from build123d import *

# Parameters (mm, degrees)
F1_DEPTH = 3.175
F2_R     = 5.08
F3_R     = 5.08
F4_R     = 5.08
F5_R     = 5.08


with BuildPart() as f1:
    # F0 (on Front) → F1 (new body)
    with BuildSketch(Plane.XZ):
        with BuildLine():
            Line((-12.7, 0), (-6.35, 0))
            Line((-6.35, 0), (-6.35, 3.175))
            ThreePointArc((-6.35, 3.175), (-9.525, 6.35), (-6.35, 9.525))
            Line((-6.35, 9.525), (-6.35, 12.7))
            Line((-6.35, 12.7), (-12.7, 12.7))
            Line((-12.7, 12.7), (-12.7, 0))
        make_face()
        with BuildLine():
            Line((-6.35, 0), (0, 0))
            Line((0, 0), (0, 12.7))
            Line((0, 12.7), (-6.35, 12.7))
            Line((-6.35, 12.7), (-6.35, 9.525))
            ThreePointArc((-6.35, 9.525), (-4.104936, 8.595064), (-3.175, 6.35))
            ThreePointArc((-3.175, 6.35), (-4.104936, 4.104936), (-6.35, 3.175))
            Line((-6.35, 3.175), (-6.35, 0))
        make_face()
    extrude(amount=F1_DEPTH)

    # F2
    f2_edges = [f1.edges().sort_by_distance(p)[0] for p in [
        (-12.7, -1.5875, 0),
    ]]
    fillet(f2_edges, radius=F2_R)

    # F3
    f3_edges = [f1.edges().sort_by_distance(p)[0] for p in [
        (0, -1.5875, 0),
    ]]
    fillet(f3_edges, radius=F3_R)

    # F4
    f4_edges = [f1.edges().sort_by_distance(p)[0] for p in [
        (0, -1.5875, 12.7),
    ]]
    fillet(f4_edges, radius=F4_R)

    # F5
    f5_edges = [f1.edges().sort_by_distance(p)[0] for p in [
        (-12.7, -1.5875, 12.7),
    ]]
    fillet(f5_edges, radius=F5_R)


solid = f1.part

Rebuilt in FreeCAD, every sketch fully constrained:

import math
import FreeCAD as App
import Part
import Sketcher

V = App.Vector
Q = App.Units.Quantity


def edges_at(feature, points):
    """Names of the edges that pass closest to the given points."""
    edges = feature.Shape.Edges
    near = lambda p: min(range(len(edges)), key=lambda i: edges[i].distToShape(Part.Vertex(*p))[0])
    return sorted({f"Edge{near(p) + 1}" for p in points})

doc = App.newDocument("Part")
body = doc.addObject("PartDesign::Body", "Body")

# Sketch on XZ plane
sketch1 = body.newObject("Sketcher::SketchObject", "Sketch")
sketch1.AttachmentSupport = (doc.getObject("XZ_Plane"), [""])
sketch1.MapMode = "FlatFace"
sketch1.addGeometry(Part.LineSegment(V(-12.7, 0, 0), V(0, 0, 0)), False)
sketch1.addGeometry(Part.LineSegment(V(0, 0, 0), V(0, 12.7, 0)), False)
sketch1.addGeometry(Part.LineSegment(V(0, 12.7, 0), V(-12.7, 12.7, 0)), False)
sketch1.addGeometry(Part.LineSegment(V(-12.7, 12.7, 0), V(-12.7, 0, 0)), False)
sketch1.addGeometry(Part.ArcOfCircle(Part.Circle(V(-6.35, 6.35, 0), V(0, 0, 1), 3.175), math.radians(90), math.radians(270)), False)
sketch1.addGeometry(Part.ArcOfCircle(Part.Circle(V(-6.35, 6.35, 0), V(0, 0, 1), 3.175), math.radians(0.000002), math.radians(89.999998)), False)
sketch1.addGeometry(Part.ArcOfCircle(Part.Circle(V(-6.35, 6.35, 0), V(0, 0, 1), 3.175), math.radians(-89.999998), math.radians(-0.000002)), False)
sketch1.addConstraint(Sketcher.Constraint("Coincident", 0, 2, 1, 1))
sketch1.addConstraint(Sketcher.Constraint("Coincident", 1, 2, 2, 1))
sketch1.addConstraint(Sketcher.Constraint("Coincident", 2, 2, 3, 1))
sketch1.addConstraint(Sketcher.Constraint("Coincident", 3, 2, 0, 1))
sketch1.addConstraint(Sketcher.Constraint("Tangent", 4, 1, 5, 2))
sketch1.addConstraint(Sketcher.Constraint("Tangent", 5, 1, 6, 2))
sketch1.addConstraint(Sketcher.Constraint("Tangent", 6, 1, 4, 2))
sketch1.addConstraint(Sketcher.Constraint("Horizontal", 0))
sketch1.addConstraint(Sketcher.Constraint("Vertical", 1))
sketch1.addConstraint(Sketcher.Constraint("Horizontal", 2))
sketch1.addConstraint(Sketcher.Constraint("Vertical", 3))
sketch1.addConstraint(Sketcher.Constraint("Coincident", 0, 2, -1, 1))
sketch1.addConstraint(Sketcher.Constraint("Horizontal", 6, 3, 5, 1))
sketch1.addConstraint(Sketcher.Constraint("Vertical", 6, 3, 4, 1))
sketch1.addConstraint(Sketcher.Constraint("Vertical", 4, 1, 6, 1))
sketch1.addConstraint(Sketcher.Constraint("Equal", 2, 1))
sketch1.addConstraint(Sketcher.Constraint("DistanceX", 0, 1, 0, 2, Q("0.5 in")))
sketch1.addConstraint(Sketcher.Constraint("Radius", 4, Q("0.125 in")))
sketch1.addConstraint(Sketcher.Constraint("DistanceX", 4, 3, -1, 1, Q("0.25 in")))
sketch1.addConstraint(Sketcher.Constraint("DistanceY", -1, 1, 4, 3, Q("0.25 in")))
pad1 = body.newObject("PartDesign::Pad", "Pad")
pad1.Profile = sketch1
pad1.Length = Q("0.125 in")
doc.recompute()

fillet = body.newObject("PartDesign::Fillet", "Fillet")
fillet.Base = (pad1, edges_at(pad1, [(-12.7, -1.587, 0)]))
fillet.Radius = Q("0.2 in")
doc.recompute()

fillet2 = body.newObject("PartDesign::Fillet", "Fillet001")
fillet2.Base = (fillet, edges_at(fillet, [(0, -1.587, 0)]))
fillet2.Radius = Q("0.2 in")
doc.recompute()

fillet3 = body.newObject("PartDesign::Fillet", "Fillet002")
fillet3.Base = (fillet2, edges_at(fillet2, [(0, -1.587, 12.7)]))
fillet3.Radius = Q("0.2 in")
doc.recompute()

fillet4 = body.newObject("PartDesign::Fillet", "Fillet003")
fillet4.Base = (fillet3, edges_at(fillet3, [(-12.7, -1.587, 12.7)]))
fillet4.Radius = Q("0.2 in")

doc.recompute()
